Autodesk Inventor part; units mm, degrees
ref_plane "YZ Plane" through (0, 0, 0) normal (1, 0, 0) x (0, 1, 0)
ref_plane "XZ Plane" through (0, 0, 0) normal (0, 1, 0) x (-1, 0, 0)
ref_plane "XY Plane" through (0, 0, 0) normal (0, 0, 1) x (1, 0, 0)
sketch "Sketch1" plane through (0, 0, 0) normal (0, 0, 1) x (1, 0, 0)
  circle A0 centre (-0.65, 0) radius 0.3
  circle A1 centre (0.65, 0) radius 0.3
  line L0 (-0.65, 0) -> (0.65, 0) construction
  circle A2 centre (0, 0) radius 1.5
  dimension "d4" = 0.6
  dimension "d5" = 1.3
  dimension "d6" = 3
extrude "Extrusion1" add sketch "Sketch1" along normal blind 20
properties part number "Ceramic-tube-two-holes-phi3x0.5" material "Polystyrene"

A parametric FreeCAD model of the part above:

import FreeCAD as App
import Part
import Sketcher

V = App.Vector
Q = App.Units.Quantity

doc = App.newDocument("Part")
body = doc.addObject("PartDesign::Body", "Body")

sketch1 = doc.addObject("Sketcher::SketchObject", "Sketch")
body.addObject(sketch1)
sketch1.AttachmentSupport = (doc.XY_Plane, [""])
sketch1.MapMode = "FlatFace"
sketch1.addGeometry([
    Part.Circle(V(0, 0, 0), V(0, 0, 1), 1.5),
    Part.Circle(V(-0.65, 0, 0), V(0, 0, 1), 0.3),
    Part.Circle(V(0.65, 0, 0), V(0, 0, 1), 0.3),
], False)
sketch1.addConstraint([
    Sketcher.Constraint("Coincident", 0, 3, -1, 1),
    Sketcher.Constraint("Equal", 1, 2),
    Sketcher.Constraint("Symmetric", 1, 3, 2, 3, -1, 1),
    Sketcher.Constraint("PointOnObject", 1, 3, -1),
    Sketcher.Constraint("Diameter", 0, Q("3 mm")),
    Sketcher.Constraint("Diameter", 1, Q("0.6 mm")),
    Sketcher.Constraint("DistanceX", 1, 3, 2, 3, Q("1.3 mm")),
])
pad1 = doc.addObject("PartDesign::Pad", "Pad")
body.addObject(pad1)
pad1.Profile = sketch1
pad1.Length = 20

doc.recompute()
